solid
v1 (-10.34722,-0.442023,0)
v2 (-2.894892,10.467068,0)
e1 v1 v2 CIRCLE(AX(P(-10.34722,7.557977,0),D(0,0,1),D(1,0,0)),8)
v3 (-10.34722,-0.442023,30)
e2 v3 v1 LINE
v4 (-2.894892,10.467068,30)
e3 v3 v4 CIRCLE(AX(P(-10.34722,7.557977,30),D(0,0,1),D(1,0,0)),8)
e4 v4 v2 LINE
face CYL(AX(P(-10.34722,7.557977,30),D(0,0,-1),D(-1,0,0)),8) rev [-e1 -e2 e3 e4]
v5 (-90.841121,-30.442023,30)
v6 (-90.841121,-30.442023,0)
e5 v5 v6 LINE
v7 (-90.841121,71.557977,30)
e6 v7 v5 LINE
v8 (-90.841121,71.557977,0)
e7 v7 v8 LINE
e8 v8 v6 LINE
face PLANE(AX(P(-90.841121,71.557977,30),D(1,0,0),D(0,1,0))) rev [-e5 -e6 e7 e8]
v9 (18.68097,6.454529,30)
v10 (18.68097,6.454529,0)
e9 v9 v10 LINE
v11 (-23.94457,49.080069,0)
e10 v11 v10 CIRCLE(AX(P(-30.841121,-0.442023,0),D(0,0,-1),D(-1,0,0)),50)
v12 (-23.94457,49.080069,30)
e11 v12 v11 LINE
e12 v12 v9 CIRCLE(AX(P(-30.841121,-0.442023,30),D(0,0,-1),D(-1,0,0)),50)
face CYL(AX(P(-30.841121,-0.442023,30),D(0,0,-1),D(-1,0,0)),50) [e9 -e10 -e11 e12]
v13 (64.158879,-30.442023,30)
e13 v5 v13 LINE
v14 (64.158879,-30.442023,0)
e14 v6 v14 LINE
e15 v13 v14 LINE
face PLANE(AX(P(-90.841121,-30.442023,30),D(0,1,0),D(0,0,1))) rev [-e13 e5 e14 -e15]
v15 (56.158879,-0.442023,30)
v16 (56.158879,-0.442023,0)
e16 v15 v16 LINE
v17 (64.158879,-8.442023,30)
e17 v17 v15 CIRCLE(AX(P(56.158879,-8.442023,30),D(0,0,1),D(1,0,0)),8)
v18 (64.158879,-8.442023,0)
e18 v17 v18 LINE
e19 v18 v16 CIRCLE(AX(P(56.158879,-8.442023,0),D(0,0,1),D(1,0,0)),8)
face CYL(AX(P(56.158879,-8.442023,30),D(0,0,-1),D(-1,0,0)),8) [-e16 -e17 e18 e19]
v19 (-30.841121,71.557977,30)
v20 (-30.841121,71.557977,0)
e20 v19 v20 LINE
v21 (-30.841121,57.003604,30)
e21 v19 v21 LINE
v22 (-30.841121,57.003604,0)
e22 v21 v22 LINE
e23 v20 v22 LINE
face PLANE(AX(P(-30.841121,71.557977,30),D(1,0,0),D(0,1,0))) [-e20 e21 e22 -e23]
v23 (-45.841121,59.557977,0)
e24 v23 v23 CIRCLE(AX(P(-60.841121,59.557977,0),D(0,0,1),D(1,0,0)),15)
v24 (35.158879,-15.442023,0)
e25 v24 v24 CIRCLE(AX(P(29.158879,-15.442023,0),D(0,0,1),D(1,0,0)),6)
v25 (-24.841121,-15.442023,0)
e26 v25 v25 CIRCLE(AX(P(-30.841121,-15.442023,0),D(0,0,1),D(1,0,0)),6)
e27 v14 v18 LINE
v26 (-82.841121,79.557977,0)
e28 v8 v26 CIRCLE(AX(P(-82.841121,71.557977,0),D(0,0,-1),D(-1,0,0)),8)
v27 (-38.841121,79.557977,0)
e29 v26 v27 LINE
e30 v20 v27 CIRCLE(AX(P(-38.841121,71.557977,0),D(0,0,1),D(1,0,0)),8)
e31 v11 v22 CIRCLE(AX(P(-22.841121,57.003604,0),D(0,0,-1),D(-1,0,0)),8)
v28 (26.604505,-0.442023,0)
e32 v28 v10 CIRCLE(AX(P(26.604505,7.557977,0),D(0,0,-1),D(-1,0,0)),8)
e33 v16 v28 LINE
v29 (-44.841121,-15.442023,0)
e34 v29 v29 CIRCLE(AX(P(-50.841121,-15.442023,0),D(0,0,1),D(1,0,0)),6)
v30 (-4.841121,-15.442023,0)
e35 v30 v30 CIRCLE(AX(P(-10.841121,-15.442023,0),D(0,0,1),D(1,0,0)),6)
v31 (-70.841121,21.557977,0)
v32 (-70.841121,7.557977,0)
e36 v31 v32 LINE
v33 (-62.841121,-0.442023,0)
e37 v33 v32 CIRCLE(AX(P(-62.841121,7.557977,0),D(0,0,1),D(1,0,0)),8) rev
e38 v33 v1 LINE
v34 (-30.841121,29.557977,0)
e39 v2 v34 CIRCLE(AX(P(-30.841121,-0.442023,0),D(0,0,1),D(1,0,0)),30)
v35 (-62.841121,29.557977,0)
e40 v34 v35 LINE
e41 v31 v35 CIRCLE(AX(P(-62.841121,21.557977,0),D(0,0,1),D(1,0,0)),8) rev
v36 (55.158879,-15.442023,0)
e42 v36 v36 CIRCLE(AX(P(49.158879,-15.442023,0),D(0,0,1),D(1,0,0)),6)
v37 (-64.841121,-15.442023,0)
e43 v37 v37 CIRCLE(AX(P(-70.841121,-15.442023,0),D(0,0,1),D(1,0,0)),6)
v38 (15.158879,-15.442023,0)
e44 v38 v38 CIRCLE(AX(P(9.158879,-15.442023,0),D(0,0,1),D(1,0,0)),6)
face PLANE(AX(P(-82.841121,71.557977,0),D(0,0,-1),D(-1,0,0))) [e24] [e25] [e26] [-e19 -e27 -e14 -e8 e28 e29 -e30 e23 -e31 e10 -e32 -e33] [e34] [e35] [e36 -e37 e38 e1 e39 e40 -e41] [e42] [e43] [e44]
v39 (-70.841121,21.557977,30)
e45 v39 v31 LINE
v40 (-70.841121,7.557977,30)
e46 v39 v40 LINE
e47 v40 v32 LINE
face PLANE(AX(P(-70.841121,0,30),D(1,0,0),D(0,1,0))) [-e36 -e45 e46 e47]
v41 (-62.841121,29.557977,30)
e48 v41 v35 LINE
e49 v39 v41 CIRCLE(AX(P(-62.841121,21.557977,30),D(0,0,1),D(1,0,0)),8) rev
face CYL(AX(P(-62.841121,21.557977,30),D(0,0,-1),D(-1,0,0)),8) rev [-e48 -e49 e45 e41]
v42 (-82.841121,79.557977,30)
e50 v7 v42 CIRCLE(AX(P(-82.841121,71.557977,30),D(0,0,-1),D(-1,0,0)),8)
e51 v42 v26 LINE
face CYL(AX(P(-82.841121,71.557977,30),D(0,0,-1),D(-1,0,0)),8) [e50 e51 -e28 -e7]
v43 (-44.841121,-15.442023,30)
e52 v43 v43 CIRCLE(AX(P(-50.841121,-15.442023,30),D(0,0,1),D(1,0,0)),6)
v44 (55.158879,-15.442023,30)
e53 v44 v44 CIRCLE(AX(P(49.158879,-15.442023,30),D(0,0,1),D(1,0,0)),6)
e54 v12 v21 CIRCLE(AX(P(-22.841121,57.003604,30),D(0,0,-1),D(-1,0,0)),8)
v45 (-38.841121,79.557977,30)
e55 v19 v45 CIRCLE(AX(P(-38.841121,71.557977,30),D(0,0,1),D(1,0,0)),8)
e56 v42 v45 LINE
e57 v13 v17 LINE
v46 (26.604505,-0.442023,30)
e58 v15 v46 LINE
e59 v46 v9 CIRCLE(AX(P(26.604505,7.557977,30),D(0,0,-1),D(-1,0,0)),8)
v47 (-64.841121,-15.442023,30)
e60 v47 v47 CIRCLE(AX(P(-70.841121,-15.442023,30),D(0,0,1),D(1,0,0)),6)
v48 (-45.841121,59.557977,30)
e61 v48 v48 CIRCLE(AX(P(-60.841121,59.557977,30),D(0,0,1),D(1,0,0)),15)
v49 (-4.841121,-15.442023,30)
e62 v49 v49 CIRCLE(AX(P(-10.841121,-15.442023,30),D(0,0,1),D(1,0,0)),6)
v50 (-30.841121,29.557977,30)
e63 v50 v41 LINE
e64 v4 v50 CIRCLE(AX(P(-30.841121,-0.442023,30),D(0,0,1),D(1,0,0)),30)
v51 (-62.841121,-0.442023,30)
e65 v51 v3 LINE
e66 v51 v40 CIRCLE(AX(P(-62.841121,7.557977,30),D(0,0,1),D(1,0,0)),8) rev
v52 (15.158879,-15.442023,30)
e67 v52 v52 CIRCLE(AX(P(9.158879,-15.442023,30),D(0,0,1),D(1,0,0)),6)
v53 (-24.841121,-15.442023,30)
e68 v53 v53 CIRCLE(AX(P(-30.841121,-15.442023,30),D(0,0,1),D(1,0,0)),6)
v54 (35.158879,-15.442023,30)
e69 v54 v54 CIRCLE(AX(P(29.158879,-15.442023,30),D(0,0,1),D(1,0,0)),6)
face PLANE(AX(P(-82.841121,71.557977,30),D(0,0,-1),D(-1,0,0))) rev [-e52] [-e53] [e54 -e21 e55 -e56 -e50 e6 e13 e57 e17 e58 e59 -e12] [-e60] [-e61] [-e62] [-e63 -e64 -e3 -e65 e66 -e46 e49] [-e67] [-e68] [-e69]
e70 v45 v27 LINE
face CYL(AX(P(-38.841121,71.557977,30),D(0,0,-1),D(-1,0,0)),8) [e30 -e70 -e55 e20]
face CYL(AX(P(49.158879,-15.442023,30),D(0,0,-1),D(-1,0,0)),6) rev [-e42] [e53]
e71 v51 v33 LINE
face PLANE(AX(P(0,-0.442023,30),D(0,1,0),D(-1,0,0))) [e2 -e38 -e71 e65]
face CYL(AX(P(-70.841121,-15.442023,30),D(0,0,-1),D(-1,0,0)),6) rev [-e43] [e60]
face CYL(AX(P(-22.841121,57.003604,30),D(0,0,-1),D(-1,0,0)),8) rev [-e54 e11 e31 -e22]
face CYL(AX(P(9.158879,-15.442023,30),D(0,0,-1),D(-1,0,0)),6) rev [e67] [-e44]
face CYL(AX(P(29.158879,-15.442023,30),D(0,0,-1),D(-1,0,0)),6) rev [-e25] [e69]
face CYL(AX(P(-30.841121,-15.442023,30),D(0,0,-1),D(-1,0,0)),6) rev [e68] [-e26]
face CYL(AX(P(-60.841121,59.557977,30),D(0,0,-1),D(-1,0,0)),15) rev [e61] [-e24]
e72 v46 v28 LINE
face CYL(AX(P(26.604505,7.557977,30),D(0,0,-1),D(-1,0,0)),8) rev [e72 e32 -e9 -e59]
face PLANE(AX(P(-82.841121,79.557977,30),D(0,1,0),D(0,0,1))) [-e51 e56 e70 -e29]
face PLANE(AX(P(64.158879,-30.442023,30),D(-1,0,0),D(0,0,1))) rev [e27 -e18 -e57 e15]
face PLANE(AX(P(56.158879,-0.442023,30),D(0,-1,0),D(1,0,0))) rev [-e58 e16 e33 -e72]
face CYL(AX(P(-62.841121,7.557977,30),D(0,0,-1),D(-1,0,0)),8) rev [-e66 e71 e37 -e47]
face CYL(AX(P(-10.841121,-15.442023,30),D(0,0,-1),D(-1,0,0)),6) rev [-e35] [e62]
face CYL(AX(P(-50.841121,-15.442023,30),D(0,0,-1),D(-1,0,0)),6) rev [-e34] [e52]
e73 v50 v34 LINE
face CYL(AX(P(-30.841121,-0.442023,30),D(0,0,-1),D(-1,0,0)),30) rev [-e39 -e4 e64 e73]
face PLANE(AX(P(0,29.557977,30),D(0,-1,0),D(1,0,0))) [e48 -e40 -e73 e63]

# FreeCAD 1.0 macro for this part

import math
import FreeCAD as App
import Part
import Sketcher

V = App.Vector
Q = App.Units.Quantity

doc = App.newDocument("Part")
body = doc.addObject("PartDesign::Body", "Body")

sketch1 = body.newObject("Sketcher::SketchObject", "Sketch")
sketch1.AttachmentSupport = (doc.getObject("XY_Plane"), [""])
sketch1.MapMode = "FlatFace"
sketch1.addGeometry(Part.LineSegment(V(-91, 72, 0), V(-91, -30, 0)), False)
sketch1.addGeometry(Part.LineSegment(V(-91, -30, 0), V(64, -30, 0)), False)
sketch1.addGeometry(Part.LineSegment(V(64, -30, 0), V(64, -8, 0)), False)
sketch1.addGeometry(Part.ArcOfCircle(Part.Circle(V(56, -8, 0), V(0, 0, 1), 8), math.radians(0), math.radians(90)), False)
sketch1.addGeometry(Part.LineSegment(V(56, 0, 0), V(27, 0, 0)), False)
sketch1.addGeometry(Part.ArcOfCircle(Part.Circle(V(27, 8, 0), V(0, 0, 1), 8), math.radians(-172), math.radians(-90)), False)
sketch1.addGeometry(Part.ArcOfCircle(Part.Circle(V(-31, 0, 0), V(0, 0, 1), 50), math.radians(8), math.radians(82)), False)
sketch1.addGeometry(Part.ArcOfCircle(Part.Circle(V(-23, 57, 0), V(0, 0, 1), 8), math.radians(180), math.radians(262)), False)
sketch1.addGeometry(Part.LineSegment(V(-31, 57, 0), V(-31, 72, 0)), False)
sketch1.addGeometry(Part.ArcOfCircle(Part.Circle(V(-39, 72, 0), V(0, 0, 1), 8), math.radians(0), math.radians(90)), False)
sketch1.addGeometry(Part.LineSegment(V(-39, 80, 0), V(-83, 80, 0)), False)
sketch1.addGeometry(Part.ArcOfCircle(Part.Circle(V(-83, 72, 0), V(0, 0, 1), 8), math.radians(90), math.radians(180)), False)
sketch1.addGeometry(Part.Circle(V(-71, -15, 0), V(0, 0, 1), 6), False)
sketch1.addGeometry(Part.Circle(V(-51, -15, 0), V(0, 0, 1), 6), False)
sketch1.addGeometry(Part.Circle(V(-31, -15, 0), V(0, 0, 1), 6), False)
sketch1.addGeometry(Part.LineSegment(V(-10, 0, 0), V(-63, 0, 0)), False)
sketch1.addGeometry(Part.ArcOfCircle(Part.Circle(V(-63, 8, 0), V(0, 0, 1), 8), math.radians(180), math.radians(270)), False)
sketch1.addGeometry(Part.LineSegment(V(-71, 8, 0), V(-71, 22, 0)), False)
sketch1.addGeometry(Part.ArcOfCircle(Part.Circle(V(-63, 22, 0), V(0, 0, 1), 8), math.radians(90), math.radians(180)), False)
sketch1.addGeometry(Part.LineSegment(V(-63, 30, 0), V(-31, 30, 0)), False)
sketch1.addGeometry(Part.ArcOfCircle(Part.Circle(V(-31, 0, 0), V(0, 0, 1), 30), math.radians(21), math.radians(90)), False)
sketch1.addGeometry(Part.ArcOfCircle(Part.Circle(V(-10, 8, 0), V(0, 0, 1), 8), math.radians(-90), math.radians(21)), False)
sketch1.addGeometry(Part.Circle(V(-11, -15, 0), V(0, 0, 1), 6), False)
sketch1.addGeometry(Part.Circle(V(9, -15, 0), V(0, 0, 1), 6), False)
sketch1.addGeometry(Part.Circle(V(29, -15, 0), V(0, 0, 1), 6), False)
sketch1.addGeometry(Part.Circle(V(49, -15, 0), V(0, 0, 1), 6), False)
sketch1.addGeometry(Part.Circle(V(-61, 60, 0), V(0, 0, 1), 15), False)
sketch1.addConstraint(Sketcher.Constraint("Coincident", 0, 2, 1, 1))
sketch1.addConstraint(Sketcher.Constraint("Coincident", 1, 2, 2, 1))
sketch1.addConstraint(Sketcher.Constraint("Tangent", 2, 2, 3, 1))
sketch1.addConstraint(Sketcher.Constraint("Tangent", 3, 2, 4, 1))
sketch1.addConstraint(Sketcher.Constraint("Tangent", 4, 2, 5, 2))
sketch1.addConstraint(Sketcher.Constraint("Tangent", 5, 1, 6, 1))
sketch1.addConstraint(Sketcher.Constraint("Tangent", 6, 2, 7, 2))
sketch1.addConstraint(Sketcher.Constraint("Tangent", 7, 1, 8, 1))
sketch1.addConstraint(Sketcher.Constraint("Tangent", 8, 2, 9, 1))
sketch1.addConstraint(Sketcher.Constraint("Tangent", 9, 2, 10, 1))
sketch1.addConstraint(Sketcher.Constraint("Tangent", 10, 2, 11, 1))
sketch1.addConstraint(Sketcher.Constraint("Tangent", 11, 2, 0, 1))
sketch1.addConstraint(Sketcher.Constraint("Tangent", 15, 2, 16, 2))
sketch1.addConstraint(Sketcher.Constraint("Tangent", 16, 1, 17, 1))
sketch1.addConstraint(Sketcher.Constraint("Tangent", 17, 2, 18, 2))
sketch1.addConstraint(Sketcher.Constraint("Tangent", 18, 1, 19, 1))
sketch1.addConstraint(Sketcher.Constraint("Tangent", 19, 2, 20, 2))
sketch1.addConstraint(Sketcher.Constraint("Tangent", 20, 1, 21, 2))
sketch1.addConstraint(Sketcher.Constraint("Tangent", 21, 1, 15, 1))
sketch1.addConstraint(Sketcher.Constraint("Vertical", 0))
sketch1.addConstraint(Sketcher.Constraint("Horizontal", 1))
sketch1.addConstraint(Sketcher.Constraint("Vertical", 2))
sketch1.addConstraint(Sketcher.Constraint("Horizontal", 4))
sketch1.addConstraint(Sketcher.Constraint("Vertical", 8))
sketch1.addConstraint(Sketcher.Constraint("Horizontal", 10))
sketch1.addConstraint(Sketcher.Constraint("Horizontal", 15))
sketch1.addConstraint(Sketcher.Constraint("Vertical", 17))
sketch1.addConstraint(Sketcher.Constraint("Horizontal", 19))
sketch1.addConstraint(Sketcher.Constraint("Coincident", 20, 3, 6, 3))
sketch1.addConstraint(Sketcher.Constraint("Equal", 3, 5))
sketch1.addConstraint(Sketcher.Constraint("Equal", 5, 7))
sketch1.addConstraint(Sketcher.Constraint("Equal", 7, 9))
sketch1.addConstraint(Sketcher.Constraint("Equal", 9, 11))
sketch1.addConstraint(Sketcher.Constraint("Equal", 12, 13))
sketch1.addConstraint(Sketcher.Constraint("Equal", 13, 14))
sketch1.addConstraint(Sketcher.Constraint("Equal", 11, 16))
sketch1.addConstraint(Sketcher.Constraint("Equal", 16, 18))
sketch1.addConstraint(Sketcher.Constraint("Equal", 18, 21))
sketch1.addConstraint(Sketcher.Constraint("Equal", 14, 22))
sketch1.addConstraint(Sketcher.Constraint("Equal", 22, 23))
sketch1.addConstraint(Sketcher.Constraint("Equal", 23, 24))
sketch1.addConstraint(Sketcher.Constraint("Equal", 24, 25))
sketch1.addConstraint(Sketcher.Constraint("Horizontal", 12, 3, 13, 3))
sketch1.addConstraint(Sketcher.Constraint("Horizontal", 13, 3, 14, 3))
sketch1.addConstraint(Sketcher.Constraint("Horizontal", 5, 3, 16, 3))
sketch1.addConstraint(Sketcher.Constraint("Horizontal", 14, 3, 22, 3))
sketch1.addConstraint(Sketcher.Constraint("Horizontal", 22, 3, 23, 3))
sketch1.addConstraint(Sketcher.Constraint("Horizontal", 23, 3, 24, 3))
sketch1.addConstraint(Sketcher.Constraint("Horizontal", 24, 3, 25, 3))
sketch1.addConstraint(Sketcher.Constraint("Horizontal", 20, 3, 3, 2))
sketch1.addConstraint(Sketcher.Constraint("Vertical", 6, 3, 14, 3))
sketch1.addConstraint(Sketcher.Constraint("Vertical", 20, 3, 7, 1))
sketch1.addConstraint(Sketcher.Constraint("Vertical", 12, 3, 16, 1))
sketch1.addConstraint(Sketcher.Constraint("Diameter", 12, Q("12 mm")))
sketch1.addConstraint(Sketcher.Constraint("Diameter", 26, Q("30 mm")))
sketch1.addConstraint(Sketcher.Constraint("Radius", 3, Q("8 mm")))
sketch1.addConstraint(Sketcher.Constraint("Radius", 6, Q("50 mm")))
sketch1.addConstraint(Sketcher.Constraint("Radius", 20, Q("30 mm")))
sketch1.addConstraint(Sketcher.Constraint("DistanceX", 1, 1, 1, 2, Q("155 mm")))
sketch1.addConstraint(Sketcher.Constraint("DistanceX", 10, 2, 10, 1, Q("44 mm")))
sketch1.addConstraint(Sketcher.Constraint("DistanceX", 19, 1, 19, 2, Q("32 mm")))
sketch1.addConstraint(Sketcher.Constraint("DistanceY", 0, 2, 0, 1, Q("102 mm")))
sketch1.addConstraint(Sketcher.Constraint("DistanceY", 2, 1, 2, 2, Q("22 mm")))
sketch1.addConstraint(Sketcher.Constraint("DistanceY", 12, 3, 6, 3, Q("15 mm")))
sketch1.addConstraint(Sketcher.Constraint("DistanceX", 12, 3, 13, 3, Q("20 mm")))
sketch1.addConstraint(Sketcher.Constraint("DistanceX", 14, 3, 22, 3, Q("20 mm")))
sketch1.addConstraint(Sketcher.Constraint("DistanceX", 22, 3, 23, 3, Q("20 mm")))
sketch1.addConstraint(Sketcher.Constraint("DistanceX", 23, 3, 24, 3, Q("20 mm")))
sketch1.addConstraint(Sketcher.Constraint("DistanceX", 25, 3, 3, 3, Q("7 mm")))
sketch1.addConstraint(Sketcher.Constraint("DistanceX", 26, 3, 9, 3, Q("22 mm")))
sketch1.addConstraint(Sketcher.Constraint("DistanceY", 26, 3, 9, 3, Q("12 mm")))
sketch1.addConstraint(Sketcher.Constraint("DistanceX", -1, 1, 3, 3, Q("56.158879 mm")))
sketch1.addConstraint(Sketcher.Constraint("DistanceY", -1, 1, 5, 1, Q("6.454529 mm")))
pad1 = body.newObject("PartDesign::Pad", "Pad")
pad1.Profile = sketch1
pad1.Length = 30

doc.recompute()
